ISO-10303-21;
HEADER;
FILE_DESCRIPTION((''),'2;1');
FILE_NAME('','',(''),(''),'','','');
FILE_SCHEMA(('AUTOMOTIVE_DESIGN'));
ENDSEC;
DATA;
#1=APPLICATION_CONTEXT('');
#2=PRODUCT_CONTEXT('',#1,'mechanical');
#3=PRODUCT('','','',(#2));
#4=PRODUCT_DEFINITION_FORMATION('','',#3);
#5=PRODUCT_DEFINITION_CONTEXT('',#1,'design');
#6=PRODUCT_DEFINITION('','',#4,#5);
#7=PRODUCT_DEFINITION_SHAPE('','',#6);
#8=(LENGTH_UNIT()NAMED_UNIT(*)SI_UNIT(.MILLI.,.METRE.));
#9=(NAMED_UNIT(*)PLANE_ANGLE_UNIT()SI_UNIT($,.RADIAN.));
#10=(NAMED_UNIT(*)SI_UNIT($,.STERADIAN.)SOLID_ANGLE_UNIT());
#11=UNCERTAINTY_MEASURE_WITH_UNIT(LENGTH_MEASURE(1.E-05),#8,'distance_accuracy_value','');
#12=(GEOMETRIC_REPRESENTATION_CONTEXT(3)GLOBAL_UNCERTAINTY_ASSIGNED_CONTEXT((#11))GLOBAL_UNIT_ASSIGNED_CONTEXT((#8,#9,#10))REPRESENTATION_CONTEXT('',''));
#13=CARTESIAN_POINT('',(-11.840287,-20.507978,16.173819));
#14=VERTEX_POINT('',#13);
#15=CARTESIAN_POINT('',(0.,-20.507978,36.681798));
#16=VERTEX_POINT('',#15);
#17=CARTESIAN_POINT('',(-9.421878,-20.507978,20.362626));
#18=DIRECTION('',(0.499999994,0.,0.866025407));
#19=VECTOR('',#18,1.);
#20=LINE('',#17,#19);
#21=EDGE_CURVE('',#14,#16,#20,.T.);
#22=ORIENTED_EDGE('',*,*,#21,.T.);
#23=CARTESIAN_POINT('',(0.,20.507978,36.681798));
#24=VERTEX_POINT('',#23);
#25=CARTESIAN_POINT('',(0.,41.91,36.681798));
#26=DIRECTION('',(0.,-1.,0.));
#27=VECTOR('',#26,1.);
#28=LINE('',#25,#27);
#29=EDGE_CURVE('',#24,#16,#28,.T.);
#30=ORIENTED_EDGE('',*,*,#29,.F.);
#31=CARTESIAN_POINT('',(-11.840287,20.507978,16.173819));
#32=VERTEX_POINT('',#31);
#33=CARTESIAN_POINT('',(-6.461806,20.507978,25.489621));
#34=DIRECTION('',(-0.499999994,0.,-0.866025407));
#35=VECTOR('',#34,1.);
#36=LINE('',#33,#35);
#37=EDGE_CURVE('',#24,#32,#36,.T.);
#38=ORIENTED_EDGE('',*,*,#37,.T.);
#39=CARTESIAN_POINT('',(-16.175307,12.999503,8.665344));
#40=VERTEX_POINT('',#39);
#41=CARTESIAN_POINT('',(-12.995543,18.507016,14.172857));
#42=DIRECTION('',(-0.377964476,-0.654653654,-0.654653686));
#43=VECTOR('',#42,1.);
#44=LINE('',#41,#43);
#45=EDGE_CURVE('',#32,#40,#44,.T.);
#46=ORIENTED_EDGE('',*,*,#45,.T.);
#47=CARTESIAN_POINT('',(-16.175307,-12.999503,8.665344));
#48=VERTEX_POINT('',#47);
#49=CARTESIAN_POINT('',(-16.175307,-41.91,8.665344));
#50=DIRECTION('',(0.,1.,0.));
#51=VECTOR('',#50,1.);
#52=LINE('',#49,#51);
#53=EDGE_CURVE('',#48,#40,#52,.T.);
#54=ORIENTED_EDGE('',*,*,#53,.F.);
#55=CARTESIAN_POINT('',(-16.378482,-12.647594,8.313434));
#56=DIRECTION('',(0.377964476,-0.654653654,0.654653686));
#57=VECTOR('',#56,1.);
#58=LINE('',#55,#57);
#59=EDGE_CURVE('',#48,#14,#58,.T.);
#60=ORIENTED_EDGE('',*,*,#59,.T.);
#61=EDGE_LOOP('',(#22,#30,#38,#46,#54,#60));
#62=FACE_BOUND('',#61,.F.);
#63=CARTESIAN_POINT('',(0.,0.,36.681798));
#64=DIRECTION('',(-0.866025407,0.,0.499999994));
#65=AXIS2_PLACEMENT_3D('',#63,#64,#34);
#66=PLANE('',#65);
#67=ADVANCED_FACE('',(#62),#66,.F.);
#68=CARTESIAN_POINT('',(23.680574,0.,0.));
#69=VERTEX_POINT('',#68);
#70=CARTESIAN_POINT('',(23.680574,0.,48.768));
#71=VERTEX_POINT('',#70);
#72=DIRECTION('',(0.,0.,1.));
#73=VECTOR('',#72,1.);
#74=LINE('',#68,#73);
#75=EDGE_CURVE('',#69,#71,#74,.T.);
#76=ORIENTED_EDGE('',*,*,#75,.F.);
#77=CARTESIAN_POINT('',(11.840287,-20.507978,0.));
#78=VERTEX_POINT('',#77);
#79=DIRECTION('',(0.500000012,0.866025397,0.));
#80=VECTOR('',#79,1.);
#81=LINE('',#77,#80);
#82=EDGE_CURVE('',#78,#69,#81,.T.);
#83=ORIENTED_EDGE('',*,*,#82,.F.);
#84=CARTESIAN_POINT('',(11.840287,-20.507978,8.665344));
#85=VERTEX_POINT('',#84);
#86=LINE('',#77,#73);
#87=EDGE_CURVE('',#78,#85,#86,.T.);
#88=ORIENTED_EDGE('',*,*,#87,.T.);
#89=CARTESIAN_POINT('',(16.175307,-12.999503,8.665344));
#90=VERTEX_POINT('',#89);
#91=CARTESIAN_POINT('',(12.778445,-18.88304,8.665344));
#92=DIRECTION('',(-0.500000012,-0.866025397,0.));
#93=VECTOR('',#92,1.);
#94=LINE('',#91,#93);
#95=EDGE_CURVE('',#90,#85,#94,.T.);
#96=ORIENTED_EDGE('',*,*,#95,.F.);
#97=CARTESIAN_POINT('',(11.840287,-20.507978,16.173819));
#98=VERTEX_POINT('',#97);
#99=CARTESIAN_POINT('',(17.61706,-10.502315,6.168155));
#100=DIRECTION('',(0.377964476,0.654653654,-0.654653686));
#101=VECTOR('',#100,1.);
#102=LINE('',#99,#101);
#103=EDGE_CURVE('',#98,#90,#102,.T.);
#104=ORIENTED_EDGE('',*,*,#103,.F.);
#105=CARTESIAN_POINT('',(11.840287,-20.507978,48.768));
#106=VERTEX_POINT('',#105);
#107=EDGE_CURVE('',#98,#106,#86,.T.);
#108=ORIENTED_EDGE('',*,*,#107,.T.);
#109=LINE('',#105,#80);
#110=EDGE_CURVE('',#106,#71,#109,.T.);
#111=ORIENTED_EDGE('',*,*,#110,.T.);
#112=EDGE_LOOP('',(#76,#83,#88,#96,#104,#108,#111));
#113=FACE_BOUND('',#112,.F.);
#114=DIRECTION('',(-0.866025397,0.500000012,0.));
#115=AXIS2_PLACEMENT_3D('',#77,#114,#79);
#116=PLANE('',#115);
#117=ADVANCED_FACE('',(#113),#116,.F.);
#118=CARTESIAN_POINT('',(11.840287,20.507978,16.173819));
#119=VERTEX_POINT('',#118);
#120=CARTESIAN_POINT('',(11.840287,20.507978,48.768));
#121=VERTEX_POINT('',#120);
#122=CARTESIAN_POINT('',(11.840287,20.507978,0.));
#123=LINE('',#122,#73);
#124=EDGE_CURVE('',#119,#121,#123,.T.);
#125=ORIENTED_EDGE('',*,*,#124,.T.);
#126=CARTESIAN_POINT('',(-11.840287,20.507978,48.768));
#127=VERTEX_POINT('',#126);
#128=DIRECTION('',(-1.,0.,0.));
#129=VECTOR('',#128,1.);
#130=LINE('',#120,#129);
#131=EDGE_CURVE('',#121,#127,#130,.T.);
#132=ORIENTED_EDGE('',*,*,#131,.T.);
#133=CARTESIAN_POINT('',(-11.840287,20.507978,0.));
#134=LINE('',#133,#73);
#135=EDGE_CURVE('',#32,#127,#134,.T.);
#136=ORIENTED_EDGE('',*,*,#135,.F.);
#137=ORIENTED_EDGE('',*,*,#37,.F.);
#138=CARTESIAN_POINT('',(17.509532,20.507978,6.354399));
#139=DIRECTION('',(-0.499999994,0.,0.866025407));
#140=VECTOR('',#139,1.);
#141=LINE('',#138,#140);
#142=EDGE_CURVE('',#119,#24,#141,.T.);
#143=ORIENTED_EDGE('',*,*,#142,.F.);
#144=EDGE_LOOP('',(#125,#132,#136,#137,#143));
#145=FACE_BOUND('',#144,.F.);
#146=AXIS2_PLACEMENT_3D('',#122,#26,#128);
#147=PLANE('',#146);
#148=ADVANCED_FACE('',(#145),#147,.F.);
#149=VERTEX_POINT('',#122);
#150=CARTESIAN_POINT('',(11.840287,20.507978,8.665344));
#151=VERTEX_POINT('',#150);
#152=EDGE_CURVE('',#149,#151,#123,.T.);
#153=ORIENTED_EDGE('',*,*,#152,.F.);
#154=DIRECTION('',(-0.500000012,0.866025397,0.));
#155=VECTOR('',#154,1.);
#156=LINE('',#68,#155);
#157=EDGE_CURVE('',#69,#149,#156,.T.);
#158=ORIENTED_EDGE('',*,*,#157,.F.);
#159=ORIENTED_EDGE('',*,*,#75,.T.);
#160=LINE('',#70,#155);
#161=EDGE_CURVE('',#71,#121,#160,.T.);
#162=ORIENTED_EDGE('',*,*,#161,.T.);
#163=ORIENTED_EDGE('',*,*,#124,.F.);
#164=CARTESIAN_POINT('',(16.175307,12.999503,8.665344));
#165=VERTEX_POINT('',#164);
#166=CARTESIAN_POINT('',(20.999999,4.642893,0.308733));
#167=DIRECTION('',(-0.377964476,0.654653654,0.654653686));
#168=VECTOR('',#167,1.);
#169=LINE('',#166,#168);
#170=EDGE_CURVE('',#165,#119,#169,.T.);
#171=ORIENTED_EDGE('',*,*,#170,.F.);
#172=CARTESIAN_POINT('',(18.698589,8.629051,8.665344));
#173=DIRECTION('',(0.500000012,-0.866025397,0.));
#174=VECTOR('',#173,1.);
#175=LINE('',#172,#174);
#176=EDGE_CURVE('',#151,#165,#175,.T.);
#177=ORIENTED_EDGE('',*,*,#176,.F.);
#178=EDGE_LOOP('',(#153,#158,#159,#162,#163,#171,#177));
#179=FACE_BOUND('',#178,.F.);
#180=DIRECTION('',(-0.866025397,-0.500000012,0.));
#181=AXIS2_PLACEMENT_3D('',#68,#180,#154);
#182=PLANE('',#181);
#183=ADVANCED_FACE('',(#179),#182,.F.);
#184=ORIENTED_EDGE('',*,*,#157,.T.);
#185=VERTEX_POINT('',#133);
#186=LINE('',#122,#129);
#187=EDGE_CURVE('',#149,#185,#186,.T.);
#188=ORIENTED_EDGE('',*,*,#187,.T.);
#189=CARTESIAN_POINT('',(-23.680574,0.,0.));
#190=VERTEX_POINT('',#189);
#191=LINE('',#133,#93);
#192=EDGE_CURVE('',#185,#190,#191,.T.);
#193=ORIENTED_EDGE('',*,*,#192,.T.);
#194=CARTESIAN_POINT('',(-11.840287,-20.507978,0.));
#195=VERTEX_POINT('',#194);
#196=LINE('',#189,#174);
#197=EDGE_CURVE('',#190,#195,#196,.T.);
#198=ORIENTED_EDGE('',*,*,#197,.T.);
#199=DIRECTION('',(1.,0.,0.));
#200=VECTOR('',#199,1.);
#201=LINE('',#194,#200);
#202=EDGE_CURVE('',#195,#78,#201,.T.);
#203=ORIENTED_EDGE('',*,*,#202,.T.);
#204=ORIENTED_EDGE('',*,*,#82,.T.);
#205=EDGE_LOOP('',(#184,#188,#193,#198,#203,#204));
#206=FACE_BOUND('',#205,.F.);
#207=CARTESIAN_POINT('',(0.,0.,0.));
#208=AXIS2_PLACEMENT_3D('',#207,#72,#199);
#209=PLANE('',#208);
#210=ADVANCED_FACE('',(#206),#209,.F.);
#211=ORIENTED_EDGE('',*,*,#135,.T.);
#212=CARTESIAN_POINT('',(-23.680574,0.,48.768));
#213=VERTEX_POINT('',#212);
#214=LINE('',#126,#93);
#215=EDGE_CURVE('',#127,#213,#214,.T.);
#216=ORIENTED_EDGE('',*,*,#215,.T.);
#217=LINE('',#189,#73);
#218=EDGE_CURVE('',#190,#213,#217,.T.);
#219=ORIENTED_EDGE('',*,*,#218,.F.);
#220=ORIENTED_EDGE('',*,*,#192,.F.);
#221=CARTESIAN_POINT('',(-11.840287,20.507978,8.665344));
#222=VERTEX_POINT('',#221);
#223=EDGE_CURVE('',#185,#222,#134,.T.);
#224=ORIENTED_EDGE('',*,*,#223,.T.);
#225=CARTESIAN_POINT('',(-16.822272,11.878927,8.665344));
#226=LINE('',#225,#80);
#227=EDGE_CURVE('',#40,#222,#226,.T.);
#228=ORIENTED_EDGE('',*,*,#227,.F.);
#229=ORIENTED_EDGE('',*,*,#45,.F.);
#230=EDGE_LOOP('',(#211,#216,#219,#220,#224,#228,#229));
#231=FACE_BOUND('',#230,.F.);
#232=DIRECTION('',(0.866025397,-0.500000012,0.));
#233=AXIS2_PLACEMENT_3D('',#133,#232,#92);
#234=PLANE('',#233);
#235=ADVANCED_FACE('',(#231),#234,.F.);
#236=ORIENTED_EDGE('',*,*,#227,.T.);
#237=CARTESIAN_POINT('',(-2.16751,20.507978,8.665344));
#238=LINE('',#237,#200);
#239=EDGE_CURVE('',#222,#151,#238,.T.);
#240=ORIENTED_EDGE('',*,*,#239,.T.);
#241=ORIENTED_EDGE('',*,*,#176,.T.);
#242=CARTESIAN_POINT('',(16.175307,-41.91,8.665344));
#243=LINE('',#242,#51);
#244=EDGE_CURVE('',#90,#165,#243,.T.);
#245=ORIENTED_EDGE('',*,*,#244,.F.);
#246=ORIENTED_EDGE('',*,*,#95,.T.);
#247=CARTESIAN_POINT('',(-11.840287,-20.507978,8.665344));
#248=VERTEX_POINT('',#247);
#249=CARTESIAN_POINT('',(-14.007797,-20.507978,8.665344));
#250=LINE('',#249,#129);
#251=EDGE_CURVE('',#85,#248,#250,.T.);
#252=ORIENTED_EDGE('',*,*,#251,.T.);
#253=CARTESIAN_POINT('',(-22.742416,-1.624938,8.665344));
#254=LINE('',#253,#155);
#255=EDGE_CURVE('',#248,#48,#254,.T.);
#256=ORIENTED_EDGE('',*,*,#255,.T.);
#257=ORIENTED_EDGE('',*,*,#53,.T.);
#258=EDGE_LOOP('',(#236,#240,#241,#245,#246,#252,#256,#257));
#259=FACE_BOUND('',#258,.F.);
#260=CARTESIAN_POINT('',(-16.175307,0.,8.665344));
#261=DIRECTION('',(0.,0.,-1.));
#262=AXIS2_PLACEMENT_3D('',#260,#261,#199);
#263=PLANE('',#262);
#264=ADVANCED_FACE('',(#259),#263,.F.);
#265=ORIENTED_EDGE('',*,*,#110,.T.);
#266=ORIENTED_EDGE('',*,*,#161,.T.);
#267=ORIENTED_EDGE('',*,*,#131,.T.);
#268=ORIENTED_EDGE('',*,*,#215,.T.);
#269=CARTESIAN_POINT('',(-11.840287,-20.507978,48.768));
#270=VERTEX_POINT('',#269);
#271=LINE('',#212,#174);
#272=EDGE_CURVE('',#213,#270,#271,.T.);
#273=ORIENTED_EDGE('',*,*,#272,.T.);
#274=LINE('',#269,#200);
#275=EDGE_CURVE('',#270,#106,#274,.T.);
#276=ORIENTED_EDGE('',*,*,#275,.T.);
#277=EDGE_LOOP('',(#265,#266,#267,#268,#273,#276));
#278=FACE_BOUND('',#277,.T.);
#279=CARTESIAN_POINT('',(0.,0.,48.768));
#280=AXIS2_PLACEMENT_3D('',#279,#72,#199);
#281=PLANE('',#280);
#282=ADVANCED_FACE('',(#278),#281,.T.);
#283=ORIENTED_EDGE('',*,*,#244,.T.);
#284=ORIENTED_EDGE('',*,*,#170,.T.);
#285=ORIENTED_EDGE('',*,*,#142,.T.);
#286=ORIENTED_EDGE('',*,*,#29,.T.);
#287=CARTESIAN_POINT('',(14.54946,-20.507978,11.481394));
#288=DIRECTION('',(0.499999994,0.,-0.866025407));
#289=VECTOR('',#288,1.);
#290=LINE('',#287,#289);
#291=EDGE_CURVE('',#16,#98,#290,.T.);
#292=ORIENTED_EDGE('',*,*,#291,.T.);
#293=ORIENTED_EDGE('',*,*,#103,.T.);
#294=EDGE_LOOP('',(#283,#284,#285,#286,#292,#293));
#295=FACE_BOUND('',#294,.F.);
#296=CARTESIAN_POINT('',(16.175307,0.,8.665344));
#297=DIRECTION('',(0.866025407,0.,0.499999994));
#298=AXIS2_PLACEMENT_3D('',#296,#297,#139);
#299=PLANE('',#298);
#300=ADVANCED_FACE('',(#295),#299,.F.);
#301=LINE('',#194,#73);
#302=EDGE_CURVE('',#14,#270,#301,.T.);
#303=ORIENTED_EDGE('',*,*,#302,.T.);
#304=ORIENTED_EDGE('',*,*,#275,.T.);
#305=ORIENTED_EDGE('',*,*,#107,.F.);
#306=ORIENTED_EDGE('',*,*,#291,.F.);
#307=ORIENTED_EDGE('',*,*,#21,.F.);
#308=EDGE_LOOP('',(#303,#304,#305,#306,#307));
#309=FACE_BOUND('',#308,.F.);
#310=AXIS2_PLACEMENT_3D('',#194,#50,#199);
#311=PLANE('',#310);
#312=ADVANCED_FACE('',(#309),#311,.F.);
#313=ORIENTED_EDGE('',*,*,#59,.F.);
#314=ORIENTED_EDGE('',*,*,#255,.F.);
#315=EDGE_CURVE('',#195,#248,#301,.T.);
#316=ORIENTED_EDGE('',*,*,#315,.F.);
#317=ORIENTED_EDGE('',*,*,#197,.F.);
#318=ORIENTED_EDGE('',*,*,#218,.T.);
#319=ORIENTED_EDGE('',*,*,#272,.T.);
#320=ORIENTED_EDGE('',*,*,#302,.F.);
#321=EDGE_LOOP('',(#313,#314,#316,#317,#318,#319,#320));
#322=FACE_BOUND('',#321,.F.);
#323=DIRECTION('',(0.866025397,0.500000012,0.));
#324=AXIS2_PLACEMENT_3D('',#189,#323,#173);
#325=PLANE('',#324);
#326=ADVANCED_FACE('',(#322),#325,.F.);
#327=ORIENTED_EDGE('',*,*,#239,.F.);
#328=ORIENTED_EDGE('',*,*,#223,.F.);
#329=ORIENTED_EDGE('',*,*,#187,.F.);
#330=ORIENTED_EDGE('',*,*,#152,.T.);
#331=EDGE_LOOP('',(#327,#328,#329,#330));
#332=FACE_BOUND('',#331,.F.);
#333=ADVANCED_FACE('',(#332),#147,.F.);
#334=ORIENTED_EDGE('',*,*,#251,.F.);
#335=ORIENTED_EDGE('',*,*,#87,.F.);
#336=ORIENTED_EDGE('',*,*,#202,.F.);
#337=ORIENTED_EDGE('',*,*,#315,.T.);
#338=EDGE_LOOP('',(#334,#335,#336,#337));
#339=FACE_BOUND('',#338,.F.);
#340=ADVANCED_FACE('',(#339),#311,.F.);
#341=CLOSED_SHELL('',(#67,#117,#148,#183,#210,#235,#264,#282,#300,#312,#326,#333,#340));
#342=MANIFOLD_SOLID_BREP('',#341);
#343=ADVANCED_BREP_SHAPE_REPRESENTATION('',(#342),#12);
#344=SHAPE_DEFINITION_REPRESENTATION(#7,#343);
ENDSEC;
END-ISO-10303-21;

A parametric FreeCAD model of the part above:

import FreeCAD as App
import Part
import Sketcher
Q = App.Units.Quantity

doc = App.newDocument("Part")
body = doc.addObject("PartDesign::Body", "Body")

# Sketch on XY plane
sketch1 = body.newObject("Sketcher::SketchObject", "Sketch")
sketch1.AttachmentSupport = (doc.getObject("XY_Plane"), [""])
sketch1.MapMode = "FlatFace"
sketch1.addGeometry([
    Part.LineSegment(App.Vector(12, 21, 0), App.Vector(-12, 21, 0)),  # 0
    Part.LineSegment(App.Vector(-12, 21, 0), App.Vector(-24, 0, 0)),  # 1
    Part.LineSegment(App.Vector(-24, 0, 0), App.Vector(-12, -21, 0)),  # 2
    Part.LineSegment(App.Vector(-12, -21, 0), App.Vector(12, -21, 0)),  # 3
    Part.LineSegment(App.Vector(12, -21, 0), App.Vector(24, 0, 0)),  # 4
    Part.LineSegment(App.Vector(24, 0, 0), App.Vector(12, 21, 0)),  # 5
], False)
sketch1.addConstraint([
    Sketcher.Constraint("Coincident", 0, 2, 1, 1),
    Sketcher.Constraint("Coincident", 1, 2, 2, 1),
    Sketcher.Constraint("Coincident", 2, 2, 3, 1),
    Sketcher.Constraint("Coincident", 3, 2, 4, 1),
    Sketcher.Constraint("Coincident", 4, 2, 5, 1),
    Sketcher.Constraint("Coincident", 5, 2, 0, 1),
    Sketcher.Constraint("Horizontal", 0),
    Sketcher.Constraint("Horizontal", 3),
    Sketcher.Constraint("Symmetric", 0, 2, 3, 2, -1, 1),
    Sketcher.Constraint("Symmetric", 1, 2, 4, 2, -1, 1),
    Sketcher.Constraint("PointOnObject", 1, 2, -1),
    Sketcher.Constraint("Parallel", 2, 5),
    Sketcher.Constraint("Vertical", 0, 2, 2, 2),
    Sketcher.Constraint("Angle", 1, Q("-120.000001 deg")),
    Sketcher.Constraint("DistanceX", 0, 2, 0, 1, 23.680574),
    Sketcher.Constraint("DistanceY", -1, 1, 0, 2, 20.507978),
])
pad1 = body.newObject("PartDesign::Pad", "Pad")
pad1.Profile = sketch1
pad1.Length = Q("1.92 in")

# Sketch on XZ plane
sketch2 = body.newObject("Sketcher::SketchObject", "Sketch001")
sketch2.AttachmentSupport = (doc.getObject("XZ_Plane"), [""])
sketch2.MapMode = "FlatFace"
sketch2.addGeometry([
    Part.LineSegment(App.Vector(16, 9, 0), App.Vector(0, 37, 0)),
    Part.LineSegment(App.Vector(0, 37, 0), App.Vector(-16, 9, 0)),
    Part.LineSegment(App.Vector(-16, 9, 0), App.Vector(16, 9, 0)),
], False)
sketch2.addConstraint([
    Sketcher.Constraint("Coincident", 0, 2, 1, 1),
    Sketcher.Constraint("Coincident", 1, 2, 2, 1),
    Sketcher.Constraint("Coincident", 2, 2, 0, 1),
    Sketcher.Constraint("Horizontal", 2),
    Sketcher.Constraint("PointOnObject", 0, 2, -2),
    Sketcher.Constraint("Equal", 0, 1),
    Sketcher.Constraint("Angle", 0, Q("120 deg")),
    Sketcher.Constraint("DistanceX", 2, 1, 2, 2, 32.350614),
    Sketcher.Constraint("DistanceY", -1, 1, 0, 2, 36.681798),
])
pocket1 = body.newObject("PartDesign::Pocket", "Pocket")
pocket1.Profile = sketch2
pocket1.Length = Q("3.3 in")
pocket1.Midplane = True

doc.recompute()
